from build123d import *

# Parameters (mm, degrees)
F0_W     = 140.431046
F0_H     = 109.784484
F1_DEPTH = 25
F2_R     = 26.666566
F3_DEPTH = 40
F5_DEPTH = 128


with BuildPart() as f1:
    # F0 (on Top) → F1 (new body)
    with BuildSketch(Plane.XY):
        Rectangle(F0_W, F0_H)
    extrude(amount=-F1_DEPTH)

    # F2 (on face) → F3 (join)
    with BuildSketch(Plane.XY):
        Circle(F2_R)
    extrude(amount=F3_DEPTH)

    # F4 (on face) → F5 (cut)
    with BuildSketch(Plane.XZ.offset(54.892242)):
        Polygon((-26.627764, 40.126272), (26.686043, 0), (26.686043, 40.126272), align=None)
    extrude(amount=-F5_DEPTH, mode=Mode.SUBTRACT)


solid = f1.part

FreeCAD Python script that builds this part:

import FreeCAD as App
import Part
import Sketcher
from FreeCAD import Vector

doc = App.newDocument("Part")
params = doc.addObject("Spreadsheet::Sheet", "Params")
for row, (alias, value) in enumerate([
    ("pad1_length", "25 mm"),
    ("pad2_length", "40 mm"),
    ("pocket1_length", "128 mm"),
], start=1):
    params.set(f"A{row}", alias)
    params.set(f"B{row}", "=" + value)
    params.setAlias(f"B{row}", alias)

body = doc.addObject("PartDesign::Body", "Body")

sketch1 = body.newObject("Sketcher::SketchObject", "Sketch")
sketch1.AttachmentSupport = (doc.getObject("XY_Plane"), [""])
sketch1.MapMode = "FlatFace"
sketch1.addGeometry(Part.LineSegment(Vector(-70, 55, 0), Vector(-70, -55, 0)), False)
sketch1.addGeometry(Part.LineSegment(Vector(-70, -55, 0), Vector(70, -55, 0)), False)
sketch1.addGeometry(Part.LineSegment(Vector(70, -55, 0), Vector(70, 55, 0)), False)
sketch1.addGeometry(Part.LineSegment(Vector(70, 55, 0), Vector(-70, 55, 0)), False)
sketch1.addConstraint(Sketcher.Constraint("Coincident", 0, 2, 1, 1))
sketch1.addConstraint(Sketcher.Constraint("Coincident", 1, 2, 2, 1))
sketch1.addConstraint(Sketcher.Constraint("Coincident", 2, 2, 3, 1))
sketch1.addConstraint(Sketcher.Constraint("Coincident", 3, 2, 0, 1))
sketch1.addConstraint(Sketcher.Constraint("Vertical", 0))
sketch1.addConstraint(Sketcher.Constraint("Horizontal", 1))
sketch1.addConstraint(Sketcher.Constraint("Vertical", 2))
sketch1.addConstraint(Sketcher.Constraint("Horizontal", 3))
sketch1.addConstraint(Sketcher.Constraint("Symmetric", 0, 2, 2, 2, -1, 1))
sketch1.addConstraint(Sketcher.Constraint("DistanceX", 1, 1, 1, 2, 140.431046))
sketch1.addConstraint(Sketcher.Constraint("DistanceY", 0, 2, 0, 1, 109.784484))
pad1 = body.newObject("PartDesign::Pad", "Pad")
pad1.Profile = sketch1
pad1.setExpression("Length", "Params.pad1_length")
pad1.Reversed = True

sketch2 = body.newObject("Sketcher::SketchObject", "Sketch001")
sketch2.AttachmentSupport = (doc.getObject("XY_Plane"), [""])
sketch2.MapMode = "FlatFace"
sketch2.addGeometry(Part.Circle(Vector(0, 0, 0), Vector(0, 0, 1), 27), False)
sketch2.addConstraint(Sketcher.Constraint("Coincident", 0, 3, -1, 1))
sketch2.addConstraint(Sketcher.Constraint("Diameter", 0, 53.333132))
pad2 = body.newObject("PartDesign::Pad", "Pad001")
pad2.Profile = sketch2
pad2.setExpression("Length", "Params.pad2_length")

sketch3 = body.newObject("Sketcher::SketchObject", "Sketch002")
sketch3.AttachmentSupport = (doc.getObject("XZ_Plane"), [""])
sketch3.MapMode = "FlatFace"
sketch3.AttachmentOffset = App.Placement(Vector(0, 0, 54.892242), App.Rotation())
sketch3.addGeometry(Part.LineSegment(Vector(-27, 40, 0), Vector(27, 0, 0)), False)
sketch3.addGeometry(Part.LineSegment(Vector(27, 0, 0), Vector(27, 40, 0)), False)
sketch3.addGeometry(Part.LineSegment(Vector(27, 40, 0), Vector(-27, 40, 0)), False)
sketch3.addConstraint(Sketcher.Constraint("Coincident", 0, 2, 1, 1))
sketch3.addConstraint(Sketcher.Constraint("Coincident", 1, 2, 2, 1))
sketch3.addConstraint(Sketcher.Constraint("Coincident", 2, 2, 0, 1))
sketch3.addConstraint(Sketcher.Constraint("Vertical", 1))
sketch3.addConstraint(Sketcher.Constraint("Horizontal", 2))
sketch3.addConstraint(Sketcher.Constraint("PointOnObject", 0, 2, -1))
sketch3.addConstraint(Sketcher.Constraint("DistanceX", 2, 2, 2, 1, 53.313807))
sketch3.addConstraint(Sketcher.Constraint("DistanceY", 1, 1, 1, 2, 40.126272))
sketch3.addConstraint(Sketcher.Constraint("DistanceX", -1, 1, 0, 2, 26.686043))
pocket1 = body.newObject("PartDesign::Pocket", "Pocket")
pocket1.Profile = sketch3
pocket1.setExpression("Length", "Params.pocket1_length")

doc.recompute()
